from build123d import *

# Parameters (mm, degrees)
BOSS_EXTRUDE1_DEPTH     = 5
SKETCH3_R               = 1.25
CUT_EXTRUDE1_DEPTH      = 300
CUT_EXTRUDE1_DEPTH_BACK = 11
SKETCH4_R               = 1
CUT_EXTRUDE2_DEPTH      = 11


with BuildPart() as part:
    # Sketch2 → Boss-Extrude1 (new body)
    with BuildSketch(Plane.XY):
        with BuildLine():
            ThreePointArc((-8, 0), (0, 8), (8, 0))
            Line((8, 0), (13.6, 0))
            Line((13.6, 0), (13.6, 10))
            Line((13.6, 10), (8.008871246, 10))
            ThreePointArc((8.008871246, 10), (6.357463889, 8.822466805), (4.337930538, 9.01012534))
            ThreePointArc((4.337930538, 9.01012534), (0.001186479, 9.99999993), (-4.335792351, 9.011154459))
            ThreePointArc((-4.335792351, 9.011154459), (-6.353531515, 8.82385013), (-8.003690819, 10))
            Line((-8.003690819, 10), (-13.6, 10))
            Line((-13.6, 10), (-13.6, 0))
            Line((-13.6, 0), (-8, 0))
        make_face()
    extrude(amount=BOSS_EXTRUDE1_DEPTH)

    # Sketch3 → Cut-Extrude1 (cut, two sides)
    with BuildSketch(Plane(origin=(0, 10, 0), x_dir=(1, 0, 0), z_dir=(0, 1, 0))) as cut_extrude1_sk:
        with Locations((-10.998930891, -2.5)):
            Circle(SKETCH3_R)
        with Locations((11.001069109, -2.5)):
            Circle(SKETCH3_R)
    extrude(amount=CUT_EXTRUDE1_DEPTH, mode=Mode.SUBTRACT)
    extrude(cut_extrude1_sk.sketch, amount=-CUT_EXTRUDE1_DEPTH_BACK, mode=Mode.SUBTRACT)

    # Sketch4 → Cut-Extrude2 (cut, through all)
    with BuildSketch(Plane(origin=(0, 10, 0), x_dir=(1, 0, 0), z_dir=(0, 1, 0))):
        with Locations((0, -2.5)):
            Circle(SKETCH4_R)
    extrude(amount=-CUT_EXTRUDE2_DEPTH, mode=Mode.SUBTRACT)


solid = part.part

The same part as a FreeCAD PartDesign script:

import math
import FreeCAD as App
import Part
import Sketcher
from FreeCAD import Vector
Q = App.Units.Quantity

doc = App.newDocument("Part")
body = doc.addObject("PartDesign::Body", "Body")

# Sketch on XY plane
sketch1 = doc.addObject("Sketcher::SketchObject", "Sketch")
body.addObject(sketch1)
sketch1.AttachmentSupport = (doc.XY_Plane, [""])
sketch1.MapMode = "FlatFace"
sketch1.addGeometry([
    Part.ArcOfCircle(Part.Circle(Vector(0, 0, 0), Vector(0, 0, 1), 8), math.radians(0), math.radians(180)),  # 0
    Part.LineSegment(Vector(8, 0, 0), Vector(13.6, 0, 0)),  # 1
    Part.LineSegment(Vector(13.6, 0, 0), Vector(13.6, 10, 0)),  # 2
    Part.LineSegment(Vector(13.6, 10, 0), Vector(8, 10, 0)),  # 3
    Part.ArcOfCircle(Part.Circle(Vector(5.6, 11.6, 0), Vector(0, 0, 1), 2.9), math.radians(-116), math.radians(-34)),  # 4
    Part.ArcOfCircle(Part.Circle(Vector(0, 0, 0), Vector(0, 0, 1), 10), math.radians(64), math.radians(116)),  # 5
    Part.ArcOfCircle(Part.Circle(Vector(-5.6, 11.6, 0), Vector(0, 0, 1), 2.9), math.radians(-146), math.radians(-64)),  # 6
    Part.LineSegment(Vector(-8, 10, 0), Vector(-13.6, 10, 0)),  # 7
    Part.LineSegment(Vector(-13.6, 10, 0), Vector(-13.6, 0, 0)),  # 8
    Part.LineSegment(Vector(-13.6, 0, 0), Vector(-8, 0, 0)),  # 9
], False)
sketch1.addConstraint([
    Sketcher.Constraint("Coincident", 0, 1, 1, 1),
    Sketcher.Constraint("Coincident", 1, 2, 2, 1),
    Sketcher.Constraint("Coincident", 2, 2, 3, 1),
    Sketcher.Constraint("Coincident", 3, 2, 4, 2),
    Sketcher.Constraint("Tangent", 4, 1, 5, 1),
    Sketcher.Constraint("Tangent", 5, 2, 6, 2),
    Sketcher.Constraint("Coincident", 6, 1, 7, 1),
    Sketcher.Constraint("Coincident", 7, 2, 8, 1),
    Sketcher.Constraint("Coincident", 8, 2, 9, 1),
    Sketcher.Constraint("Coincident", 9, 2, 0, 2),
    Sketcher.Constraint("Horizontal", 1),
    Sketcher.Constraint("Vertical", 2),
    Sketcher.Constraint("Horizontal", 3),
    Sketcher.Constraint("Horizontal", 7),
    Sketcher.Constraint("Vertical", 8),
    Sketcher.Constraint("Horizontal", 9),
    Sketcher.Constraint("Coincident", 0, 3, -1, 1),
    Sketcher.Constraint("Coincident", 5, 3, -1, 1),
    Sketcher.Constraint("Symmetric", 1, 2, 8, 2, -1, 1),
    Sketcher.Constraint("PointOnObject", 0, 1, -1),
    Sketcher.Constraint("Horizontal", 4, 3, 6, 3),
    Sketcher.Constraint("Horizontal", 3, 2, 6, 1),
    Sketcher.Constraint("Radius", 0, Q("8 mm")),
    Sketcher.Constraint("Radius", 5, Q("10 mm")),
    Sketcher.Constraint("DistanceY", 2, 1, 2, 2, Q("10 mm")),
    Sketcher.Constraint("DistanceX", 1, 1, 1, 2, Q("5.6 mm")),
    Sketcher.Constraint("DistanceX", 4, 3, 1, 2, Q("8 mm")),
    Sketcher.Constraint("Radius", 4, Q("2.909381 mm")),
    Sketcher.Constraint("Radius", 6, Q("2.907907 mm")),
])
pad1 = doc.addObject("PartDesign::Pad", "Pad")
body.addObject(pad1)
pad1.Profile = sketch1
pad1.Length = 5

# Sketch on XZ plane
sketch2 = doc.addObject("Sketcher::SketchObject", "Sketch001")
body.addObject(sketch2)
sketch2.AttachmentSupport = (doc.XZ_Plane, [""])
sketch2.MapMode = "FlatFace"
sketch2.AttachmentOffset = App.Placement(Vector(0, 0, -10), App.Rotation())
sketch2.addGeometry([
    Part.Circle(Vector(-11, 2.5, 0), Vector(0, 0, 1), 1.2),
    Part.Circle(Vector(11, 2.5, 0), Vector(0, 0, 1), 1.2),
], False)
sketch2.addConstraint([
    Sketcher.Constraint("Equal", 0, 1),
    Sketcher.Constraint("Horizontal", 0, 3, 1, 3),
    Sketcher.Constraint("Diameter", 0, Q("2.5 mm")),
    Sketcher.Constraint("DistanceX", 0, 3, 1, 3, Q("22 mm")),
    Sketcher.Constraint("DistanceY", -1, 1, 0, 3, Q("2.5 mm")),
    Sketcher.Constraint("DistanceX", 0, 3, -1, 1, Q("10.998931 mm")),
])
pocket1 = doc.addObject("PartDesign::Pocket", "Pocket")
body.addObject(pocket1)
pocket1.Profile = sketch2
pocket1.Type = "ThroughAll"
pocket1.Midplane = True

# Sketch on XZ plane
sketch3 = doc.addObject("Sketcher::SketchObject", "Sketch002")
body.addObject(sketch3)
sketch3.AttachmentSupport = (doc.XZ_Plane, [""])
sketch3.MapMode = "FlatFace"
sketch3.AttachmentOffset = App.Placement(Vector(0, 0, -10), App.Rotation())
sketch3.addGeometry(Part.Circle(Vector(0, 2.5, 0), Vector(0, 0, 1), 1), False)
sketch3.addConstraint([
    Sketcher.Constraint("PointOnObject", 0, 3, -2),
    Sketcher.Constraint("Diameter", 0, Q("2 mm")),
    Sketcher.Constraint("DistanceY", -1, 1, 0, 3, Q("2.5 mm")),
])
pocket2 = doc.addObject("PartDesign::Pocket", "Pocket001")
body.addObject(pocket2)
pocket2.Profile = sketch3
pocket2.Type = "ThroughAll"
pocket2.Reversed = True

doc.recompute()
